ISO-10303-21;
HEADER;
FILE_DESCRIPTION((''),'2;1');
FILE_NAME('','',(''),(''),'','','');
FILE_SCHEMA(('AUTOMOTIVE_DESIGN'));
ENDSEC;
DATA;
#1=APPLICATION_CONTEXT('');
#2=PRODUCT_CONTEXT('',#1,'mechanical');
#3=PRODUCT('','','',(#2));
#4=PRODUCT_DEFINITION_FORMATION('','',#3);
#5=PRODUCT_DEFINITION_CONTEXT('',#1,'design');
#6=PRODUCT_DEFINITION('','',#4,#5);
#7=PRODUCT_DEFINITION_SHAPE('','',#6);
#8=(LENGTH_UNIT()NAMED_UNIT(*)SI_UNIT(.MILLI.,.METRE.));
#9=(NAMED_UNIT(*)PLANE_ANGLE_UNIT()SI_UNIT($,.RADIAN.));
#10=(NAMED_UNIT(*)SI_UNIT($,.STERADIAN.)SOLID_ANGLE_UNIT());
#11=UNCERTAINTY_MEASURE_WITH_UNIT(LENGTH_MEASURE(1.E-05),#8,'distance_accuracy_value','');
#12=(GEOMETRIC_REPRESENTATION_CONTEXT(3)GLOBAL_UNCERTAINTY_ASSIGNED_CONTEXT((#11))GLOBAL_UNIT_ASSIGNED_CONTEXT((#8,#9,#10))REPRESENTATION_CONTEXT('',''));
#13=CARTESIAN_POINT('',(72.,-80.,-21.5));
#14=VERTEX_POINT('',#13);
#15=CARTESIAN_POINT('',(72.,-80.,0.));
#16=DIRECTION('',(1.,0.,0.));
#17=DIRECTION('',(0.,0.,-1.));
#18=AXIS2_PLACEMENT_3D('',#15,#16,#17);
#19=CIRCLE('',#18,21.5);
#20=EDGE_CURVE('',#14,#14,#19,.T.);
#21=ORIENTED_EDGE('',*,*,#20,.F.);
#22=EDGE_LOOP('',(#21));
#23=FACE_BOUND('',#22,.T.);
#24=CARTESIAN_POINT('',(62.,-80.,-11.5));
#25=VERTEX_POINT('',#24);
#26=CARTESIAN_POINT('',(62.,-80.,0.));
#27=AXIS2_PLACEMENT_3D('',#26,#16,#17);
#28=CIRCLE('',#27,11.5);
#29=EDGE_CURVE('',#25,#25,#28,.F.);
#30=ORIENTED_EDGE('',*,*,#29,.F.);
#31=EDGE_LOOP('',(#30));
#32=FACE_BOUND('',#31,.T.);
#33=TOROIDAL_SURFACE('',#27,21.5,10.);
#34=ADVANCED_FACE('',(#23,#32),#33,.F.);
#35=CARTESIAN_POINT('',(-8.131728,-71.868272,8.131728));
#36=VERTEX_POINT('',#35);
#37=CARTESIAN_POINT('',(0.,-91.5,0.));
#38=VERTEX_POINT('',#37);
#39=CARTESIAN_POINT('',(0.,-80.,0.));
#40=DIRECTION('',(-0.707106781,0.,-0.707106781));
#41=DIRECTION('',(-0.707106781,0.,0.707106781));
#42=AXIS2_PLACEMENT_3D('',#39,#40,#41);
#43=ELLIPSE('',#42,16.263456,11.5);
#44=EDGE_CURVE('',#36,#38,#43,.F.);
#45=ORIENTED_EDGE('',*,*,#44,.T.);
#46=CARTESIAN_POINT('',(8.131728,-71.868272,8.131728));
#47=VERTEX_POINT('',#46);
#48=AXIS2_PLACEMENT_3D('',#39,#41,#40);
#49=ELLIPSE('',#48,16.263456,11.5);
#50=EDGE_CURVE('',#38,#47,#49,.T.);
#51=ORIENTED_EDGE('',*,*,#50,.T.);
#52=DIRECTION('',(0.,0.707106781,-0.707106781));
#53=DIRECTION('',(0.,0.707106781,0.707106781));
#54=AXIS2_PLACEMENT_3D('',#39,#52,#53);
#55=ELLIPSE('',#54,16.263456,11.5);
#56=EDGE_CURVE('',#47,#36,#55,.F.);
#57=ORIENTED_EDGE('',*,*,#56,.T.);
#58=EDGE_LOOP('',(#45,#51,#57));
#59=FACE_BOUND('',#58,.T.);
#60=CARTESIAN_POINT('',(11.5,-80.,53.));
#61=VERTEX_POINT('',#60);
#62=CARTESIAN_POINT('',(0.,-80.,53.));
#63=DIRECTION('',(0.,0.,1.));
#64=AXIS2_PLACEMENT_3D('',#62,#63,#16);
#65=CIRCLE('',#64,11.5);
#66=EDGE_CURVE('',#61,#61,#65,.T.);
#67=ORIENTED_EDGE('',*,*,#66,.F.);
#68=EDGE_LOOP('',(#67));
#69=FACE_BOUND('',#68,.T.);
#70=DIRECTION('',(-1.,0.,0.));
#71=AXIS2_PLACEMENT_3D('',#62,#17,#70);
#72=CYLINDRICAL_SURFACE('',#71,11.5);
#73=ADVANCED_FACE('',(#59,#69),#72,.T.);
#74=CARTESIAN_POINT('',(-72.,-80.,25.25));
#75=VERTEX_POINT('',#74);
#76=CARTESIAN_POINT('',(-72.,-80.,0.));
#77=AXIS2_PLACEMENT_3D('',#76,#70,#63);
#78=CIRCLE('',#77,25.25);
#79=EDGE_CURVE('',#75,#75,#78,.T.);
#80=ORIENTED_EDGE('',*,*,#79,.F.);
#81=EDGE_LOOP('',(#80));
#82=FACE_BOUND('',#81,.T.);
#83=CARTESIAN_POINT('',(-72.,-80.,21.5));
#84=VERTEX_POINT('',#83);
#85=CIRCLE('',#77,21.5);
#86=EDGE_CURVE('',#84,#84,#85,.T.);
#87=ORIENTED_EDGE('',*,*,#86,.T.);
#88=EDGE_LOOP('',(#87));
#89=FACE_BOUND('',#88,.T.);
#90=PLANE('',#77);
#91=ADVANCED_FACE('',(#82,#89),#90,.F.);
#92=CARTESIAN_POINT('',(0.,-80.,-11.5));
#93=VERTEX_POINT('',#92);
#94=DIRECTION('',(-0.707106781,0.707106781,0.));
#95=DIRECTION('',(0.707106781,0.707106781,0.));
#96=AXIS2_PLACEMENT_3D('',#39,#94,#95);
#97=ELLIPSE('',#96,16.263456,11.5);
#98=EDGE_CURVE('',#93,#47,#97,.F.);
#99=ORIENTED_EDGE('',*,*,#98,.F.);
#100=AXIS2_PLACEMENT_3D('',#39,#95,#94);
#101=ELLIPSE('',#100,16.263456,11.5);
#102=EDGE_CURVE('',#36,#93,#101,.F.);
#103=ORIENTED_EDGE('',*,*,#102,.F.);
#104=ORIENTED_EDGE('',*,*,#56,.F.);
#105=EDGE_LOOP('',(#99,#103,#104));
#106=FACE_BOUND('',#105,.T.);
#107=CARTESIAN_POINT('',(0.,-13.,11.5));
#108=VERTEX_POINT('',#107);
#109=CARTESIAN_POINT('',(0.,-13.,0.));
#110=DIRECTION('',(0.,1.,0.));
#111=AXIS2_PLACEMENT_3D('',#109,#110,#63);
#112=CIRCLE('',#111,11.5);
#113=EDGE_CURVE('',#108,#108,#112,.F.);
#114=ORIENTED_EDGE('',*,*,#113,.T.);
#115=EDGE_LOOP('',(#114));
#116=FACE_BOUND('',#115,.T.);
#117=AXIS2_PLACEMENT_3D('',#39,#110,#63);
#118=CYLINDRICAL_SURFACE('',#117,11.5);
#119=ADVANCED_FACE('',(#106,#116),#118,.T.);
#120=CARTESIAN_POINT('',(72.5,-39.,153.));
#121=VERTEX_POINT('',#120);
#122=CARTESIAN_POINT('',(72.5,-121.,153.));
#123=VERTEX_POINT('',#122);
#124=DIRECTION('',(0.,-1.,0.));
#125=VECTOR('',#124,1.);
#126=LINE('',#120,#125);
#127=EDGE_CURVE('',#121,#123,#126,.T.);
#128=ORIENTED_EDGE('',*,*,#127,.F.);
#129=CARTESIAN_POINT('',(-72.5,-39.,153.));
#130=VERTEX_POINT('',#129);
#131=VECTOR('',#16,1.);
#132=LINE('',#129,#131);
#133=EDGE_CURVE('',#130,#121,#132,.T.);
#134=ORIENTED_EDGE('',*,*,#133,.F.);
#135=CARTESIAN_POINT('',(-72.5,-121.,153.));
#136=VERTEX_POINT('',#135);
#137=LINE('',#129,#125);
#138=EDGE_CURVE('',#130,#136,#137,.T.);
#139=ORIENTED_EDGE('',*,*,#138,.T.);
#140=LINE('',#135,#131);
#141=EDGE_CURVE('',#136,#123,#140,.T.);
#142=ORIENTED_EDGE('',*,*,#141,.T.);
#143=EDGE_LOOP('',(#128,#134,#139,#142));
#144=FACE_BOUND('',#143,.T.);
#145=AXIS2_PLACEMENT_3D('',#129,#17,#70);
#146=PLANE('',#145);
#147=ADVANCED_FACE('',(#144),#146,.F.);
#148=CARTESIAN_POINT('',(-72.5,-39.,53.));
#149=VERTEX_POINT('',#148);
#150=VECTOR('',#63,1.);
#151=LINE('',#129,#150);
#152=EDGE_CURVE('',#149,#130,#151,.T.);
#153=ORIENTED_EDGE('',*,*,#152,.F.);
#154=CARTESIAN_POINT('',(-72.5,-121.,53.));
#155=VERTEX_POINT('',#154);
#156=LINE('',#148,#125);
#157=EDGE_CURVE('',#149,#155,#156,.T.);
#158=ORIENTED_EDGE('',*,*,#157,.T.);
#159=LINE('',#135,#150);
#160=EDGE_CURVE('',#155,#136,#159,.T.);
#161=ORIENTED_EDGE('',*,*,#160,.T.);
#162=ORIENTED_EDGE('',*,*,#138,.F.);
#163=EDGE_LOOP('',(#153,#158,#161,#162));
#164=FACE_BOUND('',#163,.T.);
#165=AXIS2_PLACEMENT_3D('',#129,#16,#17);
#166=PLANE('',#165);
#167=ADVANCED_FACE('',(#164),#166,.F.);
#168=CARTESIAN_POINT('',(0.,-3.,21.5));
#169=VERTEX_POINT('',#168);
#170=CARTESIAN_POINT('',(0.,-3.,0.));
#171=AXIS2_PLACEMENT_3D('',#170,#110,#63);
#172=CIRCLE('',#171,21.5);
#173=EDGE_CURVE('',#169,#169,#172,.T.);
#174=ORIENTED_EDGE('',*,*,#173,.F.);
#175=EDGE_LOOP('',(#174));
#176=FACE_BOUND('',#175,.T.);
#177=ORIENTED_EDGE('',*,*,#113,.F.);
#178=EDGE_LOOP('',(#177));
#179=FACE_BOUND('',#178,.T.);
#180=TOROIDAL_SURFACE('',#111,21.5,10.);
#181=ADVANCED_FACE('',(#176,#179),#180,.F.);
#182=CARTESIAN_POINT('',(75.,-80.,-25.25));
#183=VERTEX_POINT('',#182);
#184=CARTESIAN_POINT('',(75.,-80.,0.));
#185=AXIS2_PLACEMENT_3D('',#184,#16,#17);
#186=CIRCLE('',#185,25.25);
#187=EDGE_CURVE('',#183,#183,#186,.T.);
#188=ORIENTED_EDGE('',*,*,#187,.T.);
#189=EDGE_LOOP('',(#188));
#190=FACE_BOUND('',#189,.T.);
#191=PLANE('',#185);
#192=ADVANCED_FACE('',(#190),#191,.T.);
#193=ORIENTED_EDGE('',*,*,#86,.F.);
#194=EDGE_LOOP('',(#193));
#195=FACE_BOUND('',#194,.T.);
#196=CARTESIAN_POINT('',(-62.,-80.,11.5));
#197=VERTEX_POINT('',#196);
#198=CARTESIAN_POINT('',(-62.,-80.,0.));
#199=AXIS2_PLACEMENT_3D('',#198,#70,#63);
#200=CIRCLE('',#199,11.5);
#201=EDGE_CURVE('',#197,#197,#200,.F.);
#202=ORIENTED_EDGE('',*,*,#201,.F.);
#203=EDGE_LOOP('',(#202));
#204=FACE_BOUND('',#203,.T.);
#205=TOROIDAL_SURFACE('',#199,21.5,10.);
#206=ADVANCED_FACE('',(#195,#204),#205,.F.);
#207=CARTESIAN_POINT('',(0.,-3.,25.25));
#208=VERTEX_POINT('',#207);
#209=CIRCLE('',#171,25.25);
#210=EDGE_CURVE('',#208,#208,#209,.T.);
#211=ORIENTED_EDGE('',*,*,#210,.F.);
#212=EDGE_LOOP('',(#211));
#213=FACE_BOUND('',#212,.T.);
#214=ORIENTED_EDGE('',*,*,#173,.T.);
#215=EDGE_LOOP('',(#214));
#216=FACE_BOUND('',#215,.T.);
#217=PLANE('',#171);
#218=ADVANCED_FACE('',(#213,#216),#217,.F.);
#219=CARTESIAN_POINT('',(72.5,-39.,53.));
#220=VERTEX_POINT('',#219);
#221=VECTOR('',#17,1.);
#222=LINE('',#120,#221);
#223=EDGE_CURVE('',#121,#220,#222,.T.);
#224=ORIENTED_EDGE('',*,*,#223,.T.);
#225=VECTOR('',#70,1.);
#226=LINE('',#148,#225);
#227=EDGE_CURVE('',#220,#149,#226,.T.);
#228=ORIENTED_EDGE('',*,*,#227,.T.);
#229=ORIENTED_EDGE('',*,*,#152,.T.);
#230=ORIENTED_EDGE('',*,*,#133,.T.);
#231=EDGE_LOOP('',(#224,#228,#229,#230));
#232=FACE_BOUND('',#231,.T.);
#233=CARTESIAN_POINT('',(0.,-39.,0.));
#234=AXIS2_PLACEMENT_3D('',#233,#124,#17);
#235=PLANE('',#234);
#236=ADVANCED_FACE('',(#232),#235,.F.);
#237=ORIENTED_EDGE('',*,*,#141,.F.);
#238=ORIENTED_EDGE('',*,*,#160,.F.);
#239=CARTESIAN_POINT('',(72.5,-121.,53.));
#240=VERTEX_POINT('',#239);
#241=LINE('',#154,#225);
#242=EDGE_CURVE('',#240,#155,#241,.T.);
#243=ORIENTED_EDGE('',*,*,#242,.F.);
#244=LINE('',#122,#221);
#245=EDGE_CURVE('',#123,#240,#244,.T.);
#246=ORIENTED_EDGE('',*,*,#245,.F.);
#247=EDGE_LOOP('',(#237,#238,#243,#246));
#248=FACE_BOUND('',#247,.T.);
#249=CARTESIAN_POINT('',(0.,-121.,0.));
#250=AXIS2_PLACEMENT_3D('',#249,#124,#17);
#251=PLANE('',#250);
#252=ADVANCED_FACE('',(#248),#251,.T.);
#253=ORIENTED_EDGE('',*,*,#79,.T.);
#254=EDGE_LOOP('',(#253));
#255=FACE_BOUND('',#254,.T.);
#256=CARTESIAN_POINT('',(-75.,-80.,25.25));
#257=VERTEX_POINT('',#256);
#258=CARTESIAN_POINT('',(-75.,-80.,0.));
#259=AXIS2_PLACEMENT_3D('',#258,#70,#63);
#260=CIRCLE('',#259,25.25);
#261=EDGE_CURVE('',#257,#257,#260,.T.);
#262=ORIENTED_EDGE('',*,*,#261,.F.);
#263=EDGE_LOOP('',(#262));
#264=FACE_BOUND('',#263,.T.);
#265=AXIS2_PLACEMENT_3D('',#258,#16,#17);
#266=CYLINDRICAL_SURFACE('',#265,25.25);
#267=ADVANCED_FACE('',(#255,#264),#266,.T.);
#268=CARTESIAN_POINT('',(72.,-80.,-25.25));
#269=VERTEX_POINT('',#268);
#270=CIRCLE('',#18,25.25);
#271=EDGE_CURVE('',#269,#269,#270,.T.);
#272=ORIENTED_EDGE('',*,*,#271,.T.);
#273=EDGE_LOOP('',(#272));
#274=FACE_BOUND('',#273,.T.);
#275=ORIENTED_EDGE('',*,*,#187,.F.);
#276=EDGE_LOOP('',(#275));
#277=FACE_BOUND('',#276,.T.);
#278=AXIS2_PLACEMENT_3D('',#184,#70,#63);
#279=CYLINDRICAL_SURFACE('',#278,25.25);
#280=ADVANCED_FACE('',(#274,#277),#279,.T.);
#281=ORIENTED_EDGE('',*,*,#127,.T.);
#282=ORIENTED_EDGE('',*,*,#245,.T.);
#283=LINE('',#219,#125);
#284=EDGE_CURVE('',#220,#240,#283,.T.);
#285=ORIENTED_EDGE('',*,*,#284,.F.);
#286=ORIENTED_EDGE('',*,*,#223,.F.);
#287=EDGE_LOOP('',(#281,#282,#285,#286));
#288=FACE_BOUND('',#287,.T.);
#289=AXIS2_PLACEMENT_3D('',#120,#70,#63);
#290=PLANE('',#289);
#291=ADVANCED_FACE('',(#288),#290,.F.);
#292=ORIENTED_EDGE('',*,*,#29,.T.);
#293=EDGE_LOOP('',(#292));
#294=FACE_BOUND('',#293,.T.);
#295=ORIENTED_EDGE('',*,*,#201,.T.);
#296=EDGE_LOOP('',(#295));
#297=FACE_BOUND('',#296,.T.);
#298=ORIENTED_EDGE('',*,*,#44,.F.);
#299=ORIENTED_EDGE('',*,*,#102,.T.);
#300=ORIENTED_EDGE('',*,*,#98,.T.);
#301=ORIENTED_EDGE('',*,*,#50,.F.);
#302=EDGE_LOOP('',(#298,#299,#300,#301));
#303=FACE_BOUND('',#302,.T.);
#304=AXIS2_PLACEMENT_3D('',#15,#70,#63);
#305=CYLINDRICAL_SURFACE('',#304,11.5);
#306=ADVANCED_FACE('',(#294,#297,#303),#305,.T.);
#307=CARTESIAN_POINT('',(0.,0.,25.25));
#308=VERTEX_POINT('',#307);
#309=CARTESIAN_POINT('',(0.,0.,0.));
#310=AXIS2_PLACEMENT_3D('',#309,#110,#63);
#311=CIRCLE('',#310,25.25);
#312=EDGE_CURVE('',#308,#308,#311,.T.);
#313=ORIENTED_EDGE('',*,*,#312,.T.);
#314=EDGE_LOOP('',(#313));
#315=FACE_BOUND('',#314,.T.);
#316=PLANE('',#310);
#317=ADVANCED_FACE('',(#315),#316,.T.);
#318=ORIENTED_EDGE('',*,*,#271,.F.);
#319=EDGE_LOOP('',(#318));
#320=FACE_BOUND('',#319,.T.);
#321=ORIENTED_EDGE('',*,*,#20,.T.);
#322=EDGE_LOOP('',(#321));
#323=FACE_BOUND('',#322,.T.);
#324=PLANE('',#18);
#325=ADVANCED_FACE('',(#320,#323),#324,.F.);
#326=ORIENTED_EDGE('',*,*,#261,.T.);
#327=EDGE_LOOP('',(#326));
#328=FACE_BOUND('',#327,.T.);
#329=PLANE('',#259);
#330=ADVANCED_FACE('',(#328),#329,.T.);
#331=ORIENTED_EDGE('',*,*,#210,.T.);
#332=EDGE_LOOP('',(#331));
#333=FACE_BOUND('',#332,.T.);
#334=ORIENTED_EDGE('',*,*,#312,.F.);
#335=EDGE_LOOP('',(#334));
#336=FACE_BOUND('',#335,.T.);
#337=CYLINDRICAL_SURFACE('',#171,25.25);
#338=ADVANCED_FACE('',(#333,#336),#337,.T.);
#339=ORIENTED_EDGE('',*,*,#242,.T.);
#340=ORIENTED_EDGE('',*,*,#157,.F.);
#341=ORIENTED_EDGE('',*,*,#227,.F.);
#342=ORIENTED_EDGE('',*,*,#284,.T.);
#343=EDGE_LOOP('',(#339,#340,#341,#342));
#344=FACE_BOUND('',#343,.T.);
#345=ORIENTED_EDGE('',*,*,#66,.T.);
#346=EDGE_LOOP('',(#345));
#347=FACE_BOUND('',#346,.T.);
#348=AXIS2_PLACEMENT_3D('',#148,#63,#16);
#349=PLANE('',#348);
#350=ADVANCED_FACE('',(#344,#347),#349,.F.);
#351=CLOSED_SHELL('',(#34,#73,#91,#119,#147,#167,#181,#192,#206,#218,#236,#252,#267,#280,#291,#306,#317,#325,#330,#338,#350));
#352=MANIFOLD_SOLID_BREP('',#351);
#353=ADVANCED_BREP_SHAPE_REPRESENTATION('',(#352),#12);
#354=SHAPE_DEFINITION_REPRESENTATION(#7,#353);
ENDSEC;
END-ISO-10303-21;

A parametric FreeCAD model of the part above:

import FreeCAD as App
import Part
import Sketcher


def edges_at(feature, points):
    """Names of the edges that pass closest to the given points."""
    edges = feature.Shape.Edges
    near = lambda p: min(range(len(edges)), key=lambda i: edges[i].distToShape(Part.Vertex(*p))[0])
    return sorted({f"Edge{near(p) + 1}" for p in points})


def add_polygon(sketch, points):
    """Adds a closed chain of lines whose ends are joined by coincident constraints."""
    first, n = sketch.GeometryCount, len(points)
    for a, b in zip(points, points[1:] + points[:1]):
        sketch.addGeometry(Part.LineSegment(App.Vector(*a, 0), App.Vector(*b, 0)), False)
    for i in range(n):
        sketch.addConstraint(Sketcher.Constraint("Coincident", first + i, 2, first + (i + 1) % n, 1))

doc = App.newDocument("Part")
body = doc.addObject("PartDesign::Body", "Body")

# Sketch on XZ plane
sketch1 = doc.addObject("Sketcher::SketchObject", "Sketch")
body.addObject(sketch1)
sketch1.AttachmentSupport = (doc.XZ_Plane, [""])
sketch1.MapMode = "FlatFace"
sketch1.addGeometry(Part.Circle(App.Vector(0, 0, 0), App.Vector(0, 0, 1), 25), False)
sketch1.addConstraint(Sketcher.Constraint("Coincident", 0, 3, -1, 1))
sketch1.addConstraint(Sketcher.Constraint("Diameter", 0, 50.5))
pad1 = doc.addObject("PartDesign::Pad", "Pad")
body.addObject(pad1)
pad1.Profile = sketch1
pad1.Length = 3

# Sketch on XZ plane
sketch2 = doc.addObject("Sketcher::SketchObject", "Sketch001")
body.addObject(sketch2)
sketch2.AttachmentSupport = (doc.XZ_Plane, [""])
sketch2.MapMode = "FlatFace"
sketch2.AttachmentOffset = App.Placement(App.Vector(0, 0, 3), App.Rotation())
sketch2.addGeometry(Part.Circle(App.Vector(0, 0, 0), App.Vector(0, 0, 1), 12), False)
sketch2.addConstraint(Sketcher.Constraint("Coincident", 0, 3, -1, 1))
sketch2.addConstraint(Sketcher.Constraint("Diameter", 0, 23.0))
pad2 = doc.addObject("PartDesign::Pad", "Pad001")
body.addObject(pad2)
pad2.Profile = sketch2
pad2.Length = 77

# Sketch on YZ plane
sketch3 = doc.addObject("Sketcher::SketchObject", "Sketch002")
body.addObject(sketch3)
sketch3.AttachmentSupport = (doc.YZ_Plane, [""])
sketch3.MapMode = "FlatFace"
sketch3.addGeometry(Part.Circle(App.Vector(-80, 0, 0), App.Vector(0, 0, 1), 12), False)
sketch3.addConstraint(Sketcher.Constraint("PointOnObject", 0, 3, -1))
sketch3.addConstraint(Sketcher.Constraint("Diameter", 0, 23.0))
sketch3.addConstraint(Sketcher.Constraint("DistanceX", 0, 3, -1, 1, 80.0))
pad3 = doc.addObject("PartDesign::Pad", "Pad002")
body.addObject(pad3)
pad3.Profile = sketch3
pad3.Length = 144
pad3.Midplane = True

# Sketch on YZ plane
sketch4 = doc.addObject("Sketcher::SketchObject", "Sketch003")
body.addObject(sketch4)
sketch4.AttachmentSupport = (doc.YZ_Plane, [""])
sketch4.MapMode = "FlatFace"
sketch4.AttachmentOffset = App.Placement(App.Vector(0, 0, 72), App.Rotation())
sketch4.addGeometry(Part.Circle(App.Vector(-80, 0, 0), App.Vector(0, 0, 1), 25), False)
sketch4.addConstraint(Sketcher.Constraint("PointOnObject", 0, 3, -1))
sketch4.addConstraint(Sketcher.Constraint("Diameter", 0, 50.5))
sketch4.addConstraint(Sketcher.Constraint("DistanceX", 0, 3, -1, 1, 80.0))
pad4 = doc.addObject("PartDesign::Pad", "Pad003")
body.addObject(pad4)
pad4.Profile = sketch4
pad4.Length = 3

# Sketch on YZ plane
sketch5 = doc.addObject("Sketcher::SketchObject", "Sketch004")
body.addObject(sketch5)
sketch5.AttachmentSupport = (doc.YZ_Plane, [""])
sketch5.MapMode = "FlatFace"
sketch5.AttachmentOffset = App.Placement(App.Vector(0, 0, -75), App.Rotation())
sketch5.addGeometry(Part.Circle(App.Vector(-80, 0, 0), App.Vector(0, 0, 1), 25), False)
sketch5.addConstraint(Sketcher.Constraint("PointOnObject", 0, 3, -1))
sketch5.addConstraint(Sketcher.Constraint("Diameter", 0, 50.5))
sketch5.addConstraint(Sketcher.Constraint("DistanceX", 0, 3, -1, 1, 80.0))
pad5 = doc.addObject("PartDesign::Pad", "Pad004")
body.addObject(pad5)
pad5.Profile = sketch5
pad5.Length = 3
doc.recompute()

fillet = doc.addObject("PartDesign::Fillet", "Fillet")
body.addObject(fillet)
fillet.Base = (pad5, edges_at(pad5, [(72, -80, 11.5), (-72, -80, 11.5), (0, -3, 11.5)]))
fillet.Radius = 10

# Sketch on XY plane
sketch6 = doc.addObject("Sketcher::SketchObject", "Sketch005")
body.addObject(sketch6)
sketch6.AttachmentSupport = (doc.XY_Plane, [""])
sketch6.MapMode = "FlatFace"
sketch6.addGeometry(Part.Circle(App.Vector(0, -80, 0), App.Vector(0, 0, 1), 12), False)
sketch6.addConstraint(Sketcher.Constraint("PointOnObject", 0, 3, -2))
sketch6.addConstraint(Sketcher.Constraint("Diameter", 0, 23.0))
sketch6.addConstraint(Sketcher.Constraint("DistanceY", 0, 3, -1, 1, 80.0))
pad6 = doc.addObject("PartDesign::Pad", "Pad005")
body.addObject(pad6)
pad6.Profile = sketch6
pad6.Length = 53

# Sketch on XZ plane
sketch7 = doc.addObject("Sketcher::SketchObject", "Sketch006")
body.addObject(sketch7)
sketch7.AttachmentSupport = (doc.XZ_Plane, [""])
sketch7.MapMode = "FlatFace"
sketch7.AttachmentOffset = App.Placement(App.Vector(0, 0, 80), App.Rotation())
add_polygon(sketch7, [(-72, 53), (-72, 153), (72, 153), (72, 53)])  # lines 0-3
sketch7.addConstraint(Sketcher.Constraint("Vertical", 0))
sketch7.addConstraint(Sketcher.Constraint("Horizontal", 1))
sketch7.addConstraint(Sketcher.Constraint("Vertical", 2))
sketch7.addConstraint(Sketcher.Constraint("Horizontal", 3))
sketch7.addConstraint(Sketcher.Constraint("DistanceX", 1, 1, 1, 2, 145.0))
sketch7.addConstraint(Sketcher.Constraint("DistanceY", 0, 1, 0, 2, 100.0))
sketch7.addConstraint(Sketcher.Constraint("DistanceY", -1, 1, 0, 2, 153.0))
sketch7.addConstraint(Sketcher.Constraint("DistanceX", 0, 2, -1, 1, 72.5))
pad7 = doc.addObject("PartDesign::Pad", "Pad006")
body.addObject(pad7)
pad7.Profile = sketch7
pad7.Length = 82
pad7.Midplane = True

doc.recompute()
